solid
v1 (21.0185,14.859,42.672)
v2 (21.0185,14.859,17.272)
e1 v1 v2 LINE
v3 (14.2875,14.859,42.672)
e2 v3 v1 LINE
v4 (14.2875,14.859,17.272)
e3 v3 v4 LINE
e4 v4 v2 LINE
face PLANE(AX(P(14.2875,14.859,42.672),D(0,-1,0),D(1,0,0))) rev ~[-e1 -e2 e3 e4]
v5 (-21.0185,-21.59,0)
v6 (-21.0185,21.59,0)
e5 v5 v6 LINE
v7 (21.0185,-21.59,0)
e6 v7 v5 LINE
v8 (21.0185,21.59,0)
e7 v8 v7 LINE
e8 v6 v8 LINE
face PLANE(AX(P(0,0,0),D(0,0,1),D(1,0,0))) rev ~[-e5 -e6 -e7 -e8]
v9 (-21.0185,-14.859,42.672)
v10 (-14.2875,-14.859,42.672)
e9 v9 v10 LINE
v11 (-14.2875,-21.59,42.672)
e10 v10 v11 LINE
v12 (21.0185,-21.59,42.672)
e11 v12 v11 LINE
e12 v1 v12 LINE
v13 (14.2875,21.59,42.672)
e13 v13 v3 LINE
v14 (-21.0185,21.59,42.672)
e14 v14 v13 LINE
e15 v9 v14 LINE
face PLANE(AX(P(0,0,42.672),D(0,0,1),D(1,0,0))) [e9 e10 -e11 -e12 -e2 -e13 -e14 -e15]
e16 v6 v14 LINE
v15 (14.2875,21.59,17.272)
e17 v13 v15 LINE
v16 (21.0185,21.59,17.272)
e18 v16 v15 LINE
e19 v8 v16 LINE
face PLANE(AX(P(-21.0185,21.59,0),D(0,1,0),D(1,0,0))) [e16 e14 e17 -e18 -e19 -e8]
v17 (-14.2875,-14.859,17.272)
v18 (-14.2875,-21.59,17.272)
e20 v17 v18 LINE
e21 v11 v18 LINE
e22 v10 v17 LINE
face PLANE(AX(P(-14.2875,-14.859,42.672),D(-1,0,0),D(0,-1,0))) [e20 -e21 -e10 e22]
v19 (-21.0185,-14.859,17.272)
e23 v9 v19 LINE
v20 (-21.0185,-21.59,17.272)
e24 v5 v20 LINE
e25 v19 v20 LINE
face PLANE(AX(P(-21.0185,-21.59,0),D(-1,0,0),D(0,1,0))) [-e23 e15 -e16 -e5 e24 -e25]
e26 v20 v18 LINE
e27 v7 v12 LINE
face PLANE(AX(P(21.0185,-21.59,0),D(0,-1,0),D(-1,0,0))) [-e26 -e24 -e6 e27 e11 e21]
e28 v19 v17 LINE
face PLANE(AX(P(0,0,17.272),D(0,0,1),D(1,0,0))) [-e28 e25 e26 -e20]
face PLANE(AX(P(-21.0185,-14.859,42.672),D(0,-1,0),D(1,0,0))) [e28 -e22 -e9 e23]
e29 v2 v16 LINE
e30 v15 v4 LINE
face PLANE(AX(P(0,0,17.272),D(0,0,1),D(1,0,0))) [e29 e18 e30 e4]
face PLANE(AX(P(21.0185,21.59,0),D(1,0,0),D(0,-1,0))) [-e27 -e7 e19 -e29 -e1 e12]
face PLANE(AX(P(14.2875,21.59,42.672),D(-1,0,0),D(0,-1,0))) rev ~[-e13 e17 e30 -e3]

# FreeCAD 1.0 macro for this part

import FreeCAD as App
import Part
import Sketcher
Q = App.Units.Quantity


def add_polygon(sketch, points):
    """Adds a closed chain of lines whose ends are joined by coincident constraints."""
    first, n = sketch.GeometryCount, len(points)
    for a, b in zip(points, points[1:] + points[:1]):
        sketch.addGeometry(Part.LineSegment(App.Vector(*a, 0), App.Vector(*b, 0)), False)
    for i in range(n):
        sketch.addConstraint(Sketcher.Constraint("Coincident", first + i, 2, first + (i + 1) % n, 1))

doc = App.newDocument("Part")
body = doc.addObject("PartDesign::Body", "Body")

sketch1 = doc.addObject("Sketcher::SketchObject", "Sketch")
body.addObject(sketch1)
sketch1.AttachmentSupport = (doc.XY_Plane, [""])
sketch1.MapMode = "FlatFace"
add_polygon(sketch1, [(21, 22), (-21, 22), (-21, -22), (21, -22)])
sketch1.addConstraint([
    Sketcher.Constraint("Horizontal", 0),
    Sketcher.Constraint("Vertical", 1),
    Sketcher.Constraint("Horizontal", 2),
    Sketcher.Constraint("Vertical", 3),
    Sketcher.Constraint("Symmetric", 0, 2, 2, 2, -1, 1),
    Sketcher.Constraint("DistanceY", 1, 2, 1, 1, Q("1.7 in")),
    Sketcher.Constraint("DistanceX", 0, 2, 0, 1, Q("1.655 in")),
])
pad1 = doc.addObject("PartDesign::Pad", "Pad")
body.addObject(pad1)
pad1.Profile = sketch1
pad1.Length = Q("1.68 in")

sketch2 = doc.addObject("Sketcher::SketchObject", "Sketch001")
body.addObject(sketch2)
sketch2.AttachmentSupport = (doc.XY_Plane, [""])
sketch2.MapMode = "FlatFace"
sketch2.AttachmentOffset = App.Placement(App.Vector(0, 0, 1.68 * 25.4), App.Rotation())
add_polygon(sketch2, [(21, 15), (21, 22), (14, 22), (14, 15)])
add_polygon(sketch2, [(-14, -15), (-21, -15), (-21, -22), (-14, -22)])
sketch2.addConstraint([
    Sketcher.Constraint("Vertical", 0),
    Sketcher.Constraint("Horizontal", 1),
    Sketcher.Constraint("Vertical", 2),
    Sketcher.Constraint("Horizontal", 3),
    Sketcher.Constraint("Horizontal", 4),
    Sketcher.Constraint("Vertical", 5),
    Sketcher.Constraint("Horizontal", 6),
    Sketcher.Constraint("Vertical", 7),
    Sketcher.Constraint("Symmetric", 3, 2, 4, 2, -1, 1),
    Sketcher.Constraint("Symmetric", 1, 2, 6, 2, -1, 1),
    Sketcher.Constraint("Equal", 6, 0),
    Sketcher.Constraint("DistanceX", 1, 2, 1, 1, Q("0.265 in")),
    Sketcher.Constraint("DistanceY", 5, 2, 1, 2, Q("1.7 in")),
    Sketcher.Constraint("DistanceX", 4, 2, 2, 2, Q("1.39 in")),
])
pocket1 = doc.addObject("PartDesign::Pocket", "Pocket")
body.addObject(pocket1)
pocket1.Profile = sketch2
pocket1.Length = Q("1 in")

doc.recompute()
